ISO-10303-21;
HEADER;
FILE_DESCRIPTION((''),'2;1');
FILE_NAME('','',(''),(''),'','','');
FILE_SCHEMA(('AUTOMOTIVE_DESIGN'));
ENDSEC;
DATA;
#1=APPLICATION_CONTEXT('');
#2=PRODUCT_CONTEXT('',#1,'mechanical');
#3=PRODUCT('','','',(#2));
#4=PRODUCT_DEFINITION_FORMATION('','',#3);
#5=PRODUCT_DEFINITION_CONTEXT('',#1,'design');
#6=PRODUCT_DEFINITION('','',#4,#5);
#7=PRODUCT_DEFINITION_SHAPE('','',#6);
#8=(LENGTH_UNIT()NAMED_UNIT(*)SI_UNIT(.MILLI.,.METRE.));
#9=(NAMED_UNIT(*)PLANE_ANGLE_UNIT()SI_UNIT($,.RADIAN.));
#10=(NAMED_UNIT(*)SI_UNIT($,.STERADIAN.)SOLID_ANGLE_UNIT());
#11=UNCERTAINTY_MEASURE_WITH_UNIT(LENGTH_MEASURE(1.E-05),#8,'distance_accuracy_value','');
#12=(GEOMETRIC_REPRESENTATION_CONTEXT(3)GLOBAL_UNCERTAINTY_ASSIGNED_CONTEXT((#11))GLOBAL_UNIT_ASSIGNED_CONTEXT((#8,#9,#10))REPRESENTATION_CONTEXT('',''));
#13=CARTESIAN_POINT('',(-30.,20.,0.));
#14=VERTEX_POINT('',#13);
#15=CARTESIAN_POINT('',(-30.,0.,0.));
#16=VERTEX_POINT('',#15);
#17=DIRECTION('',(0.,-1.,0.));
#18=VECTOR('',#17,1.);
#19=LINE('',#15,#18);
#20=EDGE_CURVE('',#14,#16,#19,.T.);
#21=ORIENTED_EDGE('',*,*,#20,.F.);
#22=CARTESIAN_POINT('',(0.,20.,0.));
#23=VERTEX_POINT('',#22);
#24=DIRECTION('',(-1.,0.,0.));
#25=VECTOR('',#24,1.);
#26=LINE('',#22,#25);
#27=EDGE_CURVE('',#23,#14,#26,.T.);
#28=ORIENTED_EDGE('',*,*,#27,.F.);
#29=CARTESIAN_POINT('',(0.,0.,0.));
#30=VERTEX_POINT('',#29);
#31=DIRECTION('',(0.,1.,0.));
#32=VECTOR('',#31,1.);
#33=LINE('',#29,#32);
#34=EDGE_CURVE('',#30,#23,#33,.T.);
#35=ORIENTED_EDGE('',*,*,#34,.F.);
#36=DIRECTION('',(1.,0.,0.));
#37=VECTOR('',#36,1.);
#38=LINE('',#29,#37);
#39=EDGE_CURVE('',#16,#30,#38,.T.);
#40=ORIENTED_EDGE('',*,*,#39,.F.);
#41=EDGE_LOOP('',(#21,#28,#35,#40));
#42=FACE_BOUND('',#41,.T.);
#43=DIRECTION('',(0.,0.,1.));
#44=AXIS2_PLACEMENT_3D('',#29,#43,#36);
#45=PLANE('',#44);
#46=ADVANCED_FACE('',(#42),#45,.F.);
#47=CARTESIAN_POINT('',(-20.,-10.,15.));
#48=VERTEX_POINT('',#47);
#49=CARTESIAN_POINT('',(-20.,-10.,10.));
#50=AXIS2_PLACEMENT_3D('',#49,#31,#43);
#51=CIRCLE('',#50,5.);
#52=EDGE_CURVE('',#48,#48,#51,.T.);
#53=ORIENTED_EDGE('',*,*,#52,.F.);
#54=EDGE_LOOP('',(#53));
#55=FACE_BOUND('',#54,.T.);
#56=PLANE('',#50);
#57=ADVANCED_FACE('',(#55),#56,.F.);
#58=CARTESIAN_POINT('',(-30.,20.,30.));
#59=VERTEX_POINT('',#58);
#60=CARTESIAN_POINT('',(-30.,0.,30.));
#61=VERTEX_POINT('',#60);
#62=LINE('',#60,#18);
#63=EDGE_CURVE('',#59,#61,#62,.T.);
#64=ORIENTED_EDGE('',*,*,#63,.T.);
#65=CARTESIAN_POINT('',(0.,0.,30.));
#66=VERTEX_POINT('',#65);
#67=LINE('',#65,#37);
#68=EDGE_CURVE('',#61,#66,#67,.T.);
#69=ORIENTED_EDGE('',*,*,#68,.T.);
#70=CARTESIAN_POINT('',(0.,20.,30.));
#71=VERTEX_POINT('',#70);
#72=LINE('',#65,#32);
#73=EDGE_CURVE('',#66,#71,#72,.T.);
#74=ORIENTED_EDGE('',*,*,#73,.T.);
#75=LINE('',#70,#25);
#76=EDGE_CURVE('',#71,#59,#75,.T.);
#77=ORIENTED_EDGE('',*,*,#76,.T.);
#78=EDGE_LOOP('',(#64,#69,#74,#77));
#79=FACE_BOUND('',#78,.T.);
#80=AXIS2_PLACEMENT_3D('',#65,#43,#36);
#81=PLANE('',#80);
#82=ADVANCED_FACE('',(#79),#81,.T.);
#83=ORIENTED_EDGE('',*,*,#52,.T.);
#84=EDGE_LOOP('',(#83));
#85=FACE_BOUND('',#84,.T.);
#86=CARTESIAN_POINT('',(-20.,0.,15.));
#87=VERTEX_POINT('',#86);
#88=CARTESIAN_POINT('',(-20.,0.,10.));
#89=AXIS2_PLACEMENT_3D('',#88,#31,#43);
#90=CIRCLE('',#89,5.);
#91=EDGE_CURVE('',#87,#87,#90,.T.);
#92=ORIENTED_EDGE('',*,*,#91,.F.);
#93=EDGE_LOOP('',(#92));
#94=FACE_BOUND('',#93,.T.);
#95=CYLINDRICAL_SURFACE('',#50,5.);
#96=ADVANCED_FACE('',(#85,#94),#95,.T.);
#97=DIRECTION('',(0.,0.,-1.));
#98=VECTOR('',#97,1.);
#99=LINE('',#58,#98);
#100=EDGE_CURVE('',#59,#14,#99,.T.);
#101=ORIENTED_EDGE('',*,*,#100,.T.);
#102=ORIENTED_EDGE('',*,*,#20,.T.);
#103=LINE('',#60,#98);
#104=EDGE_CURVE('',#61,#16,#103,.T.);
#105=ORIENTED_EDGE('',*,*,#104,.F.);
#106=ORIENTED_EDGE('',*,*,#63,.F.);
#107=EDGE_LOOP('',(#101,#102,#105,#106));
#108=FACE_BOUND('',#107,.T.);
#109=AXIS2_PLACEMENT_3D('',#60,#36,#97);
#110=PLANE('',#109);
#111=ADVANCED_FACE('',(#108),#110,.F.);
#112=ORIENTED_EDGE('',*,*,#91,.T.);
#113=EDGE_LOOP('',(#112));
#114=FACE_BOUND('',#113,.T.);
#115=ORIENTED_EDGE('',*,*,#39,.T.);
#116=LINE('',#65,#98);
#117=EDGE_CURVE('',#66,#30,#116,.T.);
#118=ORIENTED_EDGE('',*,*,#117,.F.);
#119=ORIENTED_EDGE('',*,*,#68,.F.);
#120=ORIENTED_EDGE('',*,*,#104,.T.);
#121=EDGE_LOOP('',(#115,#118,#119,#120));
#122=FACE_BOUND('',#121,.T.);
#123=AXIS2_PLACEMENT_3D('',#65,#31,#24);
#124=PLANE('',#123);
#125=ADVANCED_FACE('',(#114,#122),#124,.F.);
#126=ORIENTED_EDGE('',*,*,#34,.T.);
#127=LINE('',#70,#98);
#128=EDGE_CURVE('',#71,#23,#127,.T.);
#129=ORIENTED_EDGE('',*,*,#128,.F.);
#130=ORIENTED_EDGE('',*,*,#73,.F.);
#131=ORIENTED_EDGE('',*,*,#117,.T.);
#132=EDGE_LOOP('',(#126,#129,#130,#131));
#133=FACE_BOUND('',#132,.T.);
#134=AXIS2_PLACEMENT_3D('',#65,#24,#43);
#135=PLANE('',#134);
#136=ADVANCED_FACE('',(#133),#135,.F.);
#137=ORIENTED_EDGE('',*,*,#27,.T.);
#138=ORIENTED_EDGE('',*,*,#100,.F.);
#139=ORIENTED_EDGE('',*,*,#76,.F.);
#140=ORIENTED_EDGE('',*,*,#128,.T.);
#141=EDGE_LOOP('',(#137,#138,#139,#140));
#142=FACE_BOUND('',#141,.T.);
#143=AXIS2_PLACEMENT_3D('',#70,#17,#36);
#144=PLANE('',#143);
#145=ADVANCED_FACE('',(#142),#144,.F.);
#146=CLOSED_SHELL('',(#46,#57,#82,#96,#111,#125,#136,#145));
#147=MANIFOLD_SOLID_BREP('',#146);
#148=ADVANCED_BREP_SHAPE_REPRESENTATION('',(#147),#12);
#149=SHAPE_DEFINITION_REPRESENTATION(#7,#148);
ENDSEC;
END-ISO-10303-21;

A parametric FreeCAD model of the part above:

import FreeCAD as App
import Part
import Sketcher
Q = App.Units.Quantity

doc = App.newDocument("Part")
body = doc.addObject("PartDesign::Body", "Body")

# Sketch on XY plane
sketch1 = doc.addObject("Sketcher::SketchObject", "Sketch")
body.addObject(sketch1)
sketch1.AttachmentSupport = (doc.XY_Plane, [""])
sketch1.MapMode = "FlatFace"
sketch1.addGeometry([
    Part.LineSegment(App.Vector(-30, 20, 0), App.Vector(-30, 0, 0)),
    Part.LineSegment(App.Vector(-30, 0, 0), App.Vector(0, 0, 0)),
    Part.LineSegment(App.Vector(0, 0, 0), App.Vector(0, 20, 0)),
    Part.LineSegment(App.Vector(0, 20, 0), App.Vector(-30, 20, 0)),
], False)
sketch1.addConstraint([
    Sketcher.Constraint("Coincident", 0, 2, 1, 1),
    Sketcher.Constraint("Coincident", 1, 2, 2, 1),
    Sketcher.Constraint("Coincident", 2, 2, 3, 1),
    Sketcher.Constraint("Coincident", 3, 2, 0, 1),
    Sketcher.Constraint("Vertical", 0),
    Sketcher.Constraint("Horizontal", 1),
    Sketcher.Constraint("Vertical", 2),
    Sketcher.Constraint("Horizontal", 3),
    Sketcher.Constraint("Coincident", 1, 2, -1, 1),
    Sketcher.Constraint("DistanceX", 1, 1, 1, 2, Q("30 mm")),
    Sketcher.Constraint("DistanceY", 0, 2, 0, 1, Q("20 mm")),
])
pad1 = doc.addObject("PartDesign::Pad", "Pad")
body.addObject(pad1)
pad1.Profile = sketch1
pad1.Length = 30

# Sketch on XZ plane
sketch2 = doc.addObject("Sketcher::SketchObject", "Sketch001")
body.addObject(sketch2)
sketch2.AttachmentSupport = (doc.XZ_Plane, [""])
sketch2.MapMode = "FlatFace"
sketch2.addGeometry(Part.Circle(App.Vector(-20, 10, 0), App.Vector(0, 0, 1), 5), False)
sketch2.addConstraint([
    Sketcher.Constraint("Diameter", 0, Q("10 mm")),
    Sketcher.Constraint("DistanceX", 0, 3, -1, 1, Q("20 mm")),
    Sketcher.Constraint("DistanceY", -1, 1, 0, 3, Q("10 mm")),
])
pad2 = doc.addObject("PartDesign::Pad", "Pad001")
body.addObject(pad2)
pad2.Profile = sketch2
pad2.Length = 10

doc.recompute()
